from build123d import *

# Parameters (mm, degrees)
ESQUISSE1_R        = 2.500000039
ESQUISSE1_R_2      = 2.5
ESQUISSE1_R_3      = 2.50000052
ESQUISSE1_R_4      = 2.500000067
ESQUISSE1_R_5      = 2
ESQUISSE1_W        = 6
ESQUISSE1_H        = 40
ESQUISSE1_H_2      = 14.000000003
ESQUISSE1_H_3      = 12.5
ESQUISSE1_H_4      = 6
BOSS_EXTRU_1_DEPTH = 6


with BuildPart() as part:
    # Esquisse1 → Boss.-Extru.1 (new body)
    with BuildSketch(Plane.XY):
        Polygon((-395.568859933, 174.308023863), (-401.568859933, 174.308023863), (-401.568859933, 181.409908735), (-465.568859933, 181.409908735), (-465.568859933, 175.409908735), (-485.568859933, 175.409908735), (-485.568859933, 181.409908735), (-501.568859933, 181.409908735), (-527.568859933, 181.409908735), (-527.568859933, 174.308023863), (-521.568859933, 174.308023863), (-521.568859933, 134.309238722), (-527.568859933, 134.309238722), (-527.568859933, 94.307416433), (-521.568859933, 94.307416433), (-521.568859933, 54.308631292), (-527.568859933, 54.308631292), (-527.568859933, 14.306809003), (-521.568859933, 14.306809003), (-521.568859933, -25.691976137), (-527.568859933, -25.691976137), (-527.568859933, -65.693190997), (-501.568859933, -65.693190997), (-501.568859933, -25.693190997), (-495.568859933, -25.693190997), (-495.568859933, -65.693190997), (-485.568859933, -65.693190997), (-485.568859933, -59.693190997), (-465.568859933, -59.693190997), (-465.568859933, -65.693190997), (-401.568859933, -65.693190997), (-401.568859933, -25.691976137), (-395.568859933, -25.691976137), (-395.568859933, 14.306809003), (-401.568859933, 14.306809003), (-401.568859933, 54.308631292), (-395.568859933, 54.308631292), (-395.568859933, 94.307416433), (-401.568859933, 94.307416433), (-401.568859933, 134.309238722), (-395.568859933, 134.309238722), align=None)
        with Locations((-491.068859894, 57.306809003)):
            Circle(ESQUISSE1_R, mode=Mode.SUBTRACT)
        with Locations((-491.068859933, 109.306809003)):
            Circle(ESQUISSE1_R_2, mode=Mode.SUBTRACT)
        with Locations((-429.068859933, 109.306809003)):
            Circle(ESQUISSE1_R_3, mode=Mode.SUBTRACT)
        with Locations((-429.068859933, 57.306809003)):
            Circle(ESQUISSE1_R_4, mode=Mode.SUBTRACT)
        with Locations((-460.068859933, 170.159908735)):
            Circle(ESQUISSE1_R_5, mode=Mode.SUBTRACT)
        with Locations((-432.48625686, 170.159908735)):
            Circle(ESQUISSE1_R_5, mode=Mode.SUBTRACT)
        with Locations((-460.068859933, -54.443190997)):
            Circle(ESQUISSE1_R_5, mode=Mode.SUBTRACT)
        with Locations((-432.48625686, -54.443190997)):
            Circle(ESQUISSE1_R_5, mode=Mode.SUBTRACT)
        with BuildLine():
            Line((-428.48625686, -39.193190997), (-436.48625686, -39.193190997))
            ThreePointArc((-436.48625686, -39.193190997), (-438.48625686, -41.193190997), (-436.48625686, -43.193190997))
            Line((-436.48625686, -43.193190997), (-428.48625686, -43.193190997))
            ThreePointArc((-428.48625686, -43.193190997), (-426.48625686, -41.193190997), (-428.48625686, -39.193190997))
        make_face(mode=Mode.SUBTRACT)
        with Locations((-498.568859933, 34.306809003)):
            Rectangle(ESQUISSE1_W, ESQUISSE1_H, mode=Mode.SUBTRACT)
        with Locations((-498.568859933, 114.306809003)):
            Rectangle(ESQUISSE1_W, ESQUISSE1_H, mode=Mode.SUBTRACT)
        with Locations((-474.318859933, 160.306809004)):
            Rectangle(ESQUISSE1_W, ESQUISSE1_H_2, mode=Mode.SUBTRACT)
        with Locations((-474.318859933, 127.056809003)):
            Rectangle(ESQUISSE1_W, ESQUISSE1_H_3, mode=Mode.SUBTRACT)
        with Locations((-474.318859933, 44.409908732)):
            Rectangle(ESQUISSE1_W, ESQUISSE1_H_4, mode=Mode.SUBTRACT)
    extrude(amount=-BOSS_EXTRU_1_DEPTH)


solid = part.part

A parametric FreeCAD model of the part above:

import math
import FreeCAD as App
import Part
import Sketcher


def add_polygon(sketch, points):
    """Adds a closed chain of lines whose ends are joined by coincident constraints."""
    first, n = sketch.GeometryCount, len(points)
    for a, b in zip(points, points[1:] + points[:1]):
        sketch.addGeometry(Part.LineSegment(App.Vector(*a, 0), App.Vector(*b, 0)), False)
    for i in range(n):
        sketch.addConstraint(Sketcher.Constraint("Coincident", first + i, 2, first + (i + 1) % n, 1))

doc = App.newDocument("Part")
body = doc.addObject("PartDesign::Body", "Body")

# Sketch on XY plane
sketch1 = body.newObject("Sketcher::SketchObject", "Sketch")
sketch1.AttachmentSupport = (doc.getObject("XY_Plane"), [""])
sketch1.MapMode = "FlatFace"
add_polygon(sketch1, [(-395.56886, 174.308024), (-401.56886, 174.308024), (-401.56886, 181.409909), (-465.56886, 181.409909), (-465.56886, 175.409909), (-485.56886, 175.409909), (-485.56886, 181.409909), (-527.56886, 181.409909), (-527.56886, 174.308024), (-521.56886, 174.308024), (-521.56886, 134.309239), (-527.56886, 134.309239), (-527.56886, 94.307416), (-521.56886, 94.307416), (-521.56886, 54.308631), (-527.56886, 54.308631), (-527.56886, 14.306809), (-521.56886, 14.306809), (-521.56886, -25.691976), (-527.56886, -25.691976), (-527.56886, -65.693191), (-501.56886, -65.693191), (-501.56886, -25.693191), (-495.56886, -25.693191), (-495.56886, -65.693191), (-485.56886, -65.693191), (-485.56886, -59.693191), (-465.56886, -59.693191), (-465.56886, -65.693191), (-401.56886, -65.693191), (-401.56886, -25.691976), (-395.56886, -25.691976), (-395.56886, 14.306809), (-401.56886, 14.306809), (-401.56886, 54.308631), (-395.56886, 54.308631), (-395.56886, 94.307416), (-401.56886, 94.307416), (-401.56886, 134.309239), (-395.56886, 134.309239)])  # lines 0-39
add_polygon(sketch1, [(-495.56886, 14.306809), (-501.56886, 14.306809), (-501.56886, 54.306809), (-495.56886, 54.306809)])  # lines 40-43
sketch1.addGeometry(Part.Circle(App.Vector(-491.06886, 57.306809, 0), App.Vector(0, 0, 1), 2.5), False)  # 44
add_polygon(sketch1, [(-471.31886, 41.409909), (-477.31886, 41.409909), (-477.31886, 47.409909), (-471.31886, 47.409909)])  # lines 45-48
sketch1.addGeometry(Part.Circle(App.Vector(-460.06886, -54.443191, 0), App.Vector(0, 0, 1), 2), False)  # 49
sketch1.addGeometry(Part.Circle(App.Vector(-432.486257, -54.443191, 0), App.Vector(0, 0, 1), 2), False)  # 50
sketch1.addGeometry(Part.LineSegment(App.Vector(-436.486257, -39.193191, 0), App.Vector(-428.486257, -39.193191, 0)), False)  # 51
sketch1.addGeometry(Part.ArcOfCircle(Part.Circle(App.Vector(-428.486257, -41.193191, 0), App.Vector(0, 0, 1), 2), math.radians(-90), math.radians(90)), False)  # 52
sketch1.addGeometry(Part.LineSegment(App.Vector(-428.486257, -43.193191, 0), App.Vector(-436.486257, -43.193191, 0)), False)  # 53
sketch1.addGeometry(Part.ArcOfCircle(Part.Circle(App.Vector(-436.486257, -41.193191, 0), App.Vector(0, 0, 1), 2), math.radians(90), math.radians(270)), False)  # 54
sketch1.addGeometry(Part.Circle(App.Vector(-429.06886, 57.306809, 0), App.Vector(0, 0, 1), 2.5), False)  # 55
add_polygon(sketch1, [(-495.56886, 94.306809), (-501.56886, 94.306809), (-501.56886, 134.306809), (-495.56886, 134.306809)])  # lines 56-59
sketch1.addGeometry(Part.Circle(App.Vector(-491.06886, 109.306809, 0), App.Vector(0, 0, 1), 2.5), False)  # 60
add_polygon(sketch1, [(-471.31886, 120.806809), (-477.31886, 120.806809), (-477.31886, 133.306809), (-471.31886, 133.306809)])  # lines 61-64
add_polygon(sketch1, [(-471.31886, 153.306809), (-477.31886, 153.306809), (-477.31886, 167.306809), (-471.31886, 167.306809)])  # lines 65-68
sketch1.addGeometry(Part.Circle(App.Vector(-429.06886, 109.306809, 0), App.Vector(0, 0, 1), 2.500001), False)  # 69
sketch1.addGeometry(Part.Circle(App.Vector(-460.06886, 170.159909, 0), App.Vector(0, 0, 1), 2), False)  # 70
sketch1.addGeometry(Part.Circle(App.Vector(-432.486257, 170.159909, 0), App.Vector(0, 0, 1), 2), False)  # 71
sketch1.addConstraint([
    Sketcher.Constraint("Tangent", 51, 2, 52, 2),
    Sketcher.Constraint("Tangent", 52, 1, 53, 1),
    Sketcher.Constraint("Tangent", 53, 2, 54, 2),
    Sketcher.Constraint("Tangent", 54, 1, 51, 1),
    Sketcher.Constraint("Horizontal", 0),
    Sketcher.Constraint("Vertical", 1),
    Sketcher.Constraint("Horizontal", 2),
    Sketcher.Constraint("Vertical", 3),
    Sketcher.Constraint("Horizontal", 4),
    Sketcher.Constraint("Vertical", 5),
    Sketcher.Constraint("Horizontal", 6),
    Sketcher.Constraint("Vertical", 7),
    Sketcher.Constraint("Horizontal", 8),
    Sketcher.Constraint("Vertical", 9),
    Sketcher.Constraint("Horizontal", 10),
    Sketcher.Constraint("Vertical", 11),
    Sketcher.Constraint("Horizontal", 12),
    Sketcher.Constraint("Vertical", 13),
    Sketcher.Constraint("Horizontal", 14),
    Sketcher.Constraint("Vertical", 15),
    Sketcher.Constraint("Horizontal", 16),
    Sketcher.Constraint("Vertical", 17),
    Sketcher.Constraint("Horizontal", 18),
    Sketcher.Constraint("Vertical", 19),
    Sketcher.Constraint("Horizontal", 20),
    Sketcher.Constraint("Vertical", 21),
    Sketcher.Constraint("Horizontal", 22),
    Sketcher.Constraint("Vertical", 23),
    Sketcher.Constraint("Horizontal", 24),
    Sketcher.Constraint("Vertical", 25),
    Sketcher.Constraint("Horizontal", 26),
    Sketcher.Constraint("Vertical", 27),
    Sketcher.Constraint("Horizontal", 28),
    Sketcher.Constraint("Vertical", 29),
    Sketcher.Constraint("Horizontal", 30),
    Sketcher.Constraint("Vertical", 31),
    Sketcher.Constraint("Horizontal", 32),
    Sketcher.Constraint("Vertical", 33),
    Sketcher.Constraint("Horizontal", 34),
    Sketcher.Constraint("Vertical", 35),
    Sketcher.Constraint("Horizontal", 36),
    Sketcher.Constraint("Vertical", 37),
    Sketcher.Constraint("Horizontal", 38),
    Sketcher.Constraint("Vertical", 39),
    Sketcher.Constraint("Horizontal", 40),
    Sketcher.Constraint("Vertical", 41),
    Sketcher.Constraint("Horizontal", 42),
    Sketcher.Constraint("Vertical", 43),
    Sketcher.Constraint("Horizontal", 45),
    Sketcher.Constraint("Vertical", 46),
    Sketcher.Constraint("Horizontal", 47),
    Sketcher.Constraint("Vertical", 48),
    Sketcher.Constraint("Horizontal", 51),
    Sketcher.Constraint("Horizontal", 53),
    Sketcher.Constraint("Horizontal", 56),
    Sketcher.Constraint("Vertical", 57),
    Sketcher.Constraint("Horizontal", 58),
    Sketcher.Constraint("Vertical", 59),
    Sketcher.Constraint("Horizontal", 61),
    Sketcher.Constraint("Vertical", 62),
    Sketcher.Constraint("Horizontal", 63),
    Sketcher.Constraint("Vertical", 64),
    Sketcher.Constraint("Horizontal", 65),
    Sketcher.Constraint("Vertical", 66),
    Sketcher.Constraint("Horizontal", 67),
    Sketcher.Constraint("Vertical", 68),
    Sketcher.Constraint("Equal", 49, 50),
    Sketcher.Constraint("Equal", 50, 52),
    Sketcher.Constraint("Equal", 44, 55),
    Sketcher.Constraint("Equal", 55, 60),
    Sketcher.Constraint("Equal", 60, 69),
    Sketcher.Constraint("Equal", 54, 70),
    Sketcher.Constraint("Equal", 70, 71),
    Sketcher.Constraint("Horizontal", 49, 3, 50, 3),
    Sketcher.Constraint("Horizontal", 44, 3, 55, 3),
    Sketcher.Constraint("Horizontal", 60, 3, 69, 3),
    Sketcher.Constraint("Horizontal", 70, 3, 71, 3),
    Sketcher.Constraint("Horizontal", 2, 2, 5, 2),
    Sketcher.Constraint("Horizontal", 0, 2, 7, 2),
    Sketcher.Constraint("Horizontal", 20, 2, 23, 2),
    Sketcher.Constraint("Horizontal", 24, 2, 27, 2),
    Sketcher.Constraint("Horizontal", 18, 2, 29, 2),
    Sketcher.Constraint("Horizontal", 16, 2, 31, 2),
    Sketcher.Constraint("Horizontal", 14, 2, 33, 2),
    Sketcher.Constraint("Horizontal", 12, 2, 35, 2),
    Sketcher.Constraint("Horizontal", 10, 2, 37, 2),
    Sketcher.Constraint("Horizontal", 32, 2, 40, 2),
    Sketcher.Constraint("Vertical", 44, 3, 60, 3),
    Sketcher.Constraint("Vertical", 55, 3, 69, 3),
    Sketcher.Constraint("Vertical", 49, 3, 70, 3),
    Sketcher.Constraint("Vertical", 50, 3, 71, 3),
    Sketcher.Constraint("Vertical", 7, 2, 10, 2),
    Sketcher.Constraint("Vertical", 9, 2, 12, 2),
    Sketcher.Constraint("Vertical", 11, 2, 14, 2),
    Sketcher.Constraint("Vertical", 13, 2, 16, 2),
    Sketcher.Constraint("Vertical", 15, 2, 18, 2),
    Sketcher.Constraint("Vertical", 5, 2, 24, 2),
    Sketcher.Constraint("Vertical", 3, 2, 26, 2),
    Sketcher.Constraint("Vertical", 1, 2, 28, 2),
    Sketcher.Constraint("Vertical", 29, 2, 32, 2),
    Sketcher.Constraint("Vertical", 31, 2, 34, 2),
    Sketcher.Constraint("Vertical", 33, 2, 36, 2),
    Sketcher.Constraint("Vertical", 35, 2, 38, 2),
    Sketcher.Constraint("Vertical", 21, 2, 40, 2),
    Sketcher.Constraint("Vertical", 23, 2, 42, 2),
    Sketcher.Constraint("Vertical", 41, 2, 56, 2),
    Sketcher.Constraint("Vertical", 43, 2, 58, 2),
    Sketcher.Constraint("Vertical", 46, 2, 61, 2),
    Sketcher.Constraint("Vertical", 48, 2, 63, 2),
    Sketcher.Constraint("Vertical", 62, 2, 65, 2),
    Sketcher.Constraint("Vertical", 64, 2, 67, 2),
    Sketcher.Constraint("Equal", 0, 8),
    Sketcher.Constraint("Equal", 18, 22),
    Sketcher.Constraint("Equal", 42, 45),
    Sketcher.Constraint("Equal", 67, 3),
    Sketcher.Constraint("Equal", 9, 13),
    Sketcher.Constraint("Equal", 11, 15),
    Sketcher.Constraint("Equal", 13, 17),
    Sketcher.Constraint("Equal", 5, 25),
    Sketcher.Constraint("Equal", 23, 41),
    Sketcher.Constraint("Equal", 27, 46),
    Sketcher.Constraint("Equal", 43, 57),
    Sketcher.Constraint("Diameter", 44, 5.0),
    Sketcher.Constraint("Diameter", 49, 4.0),
    Sketcher.Constraint("DistanceX", 0, 2, 0, 1, 6.0),
    Sketcher.Constraint("DistanceX", 2, 2, 2, 1, 64.0),
    Sketcher.Constraint("DistanceX", 4, 2, 4, 1, 20.0),
    Sketcher.Constraint("DistanceX", 6, 2, 6, 1, 42.0),
    Sketcher.Constraint("DistanceX", 20, 1, 20, 2, 26.0),
    Sketcher.Constraint("DistanceX", 51, 1, 51, 2, 8.0),
    Sketcher.Constraint("DistanceY", 21, 1, 21, 2, 40.0),
    Sketcher.Constraint("DistanceY", 66, 1, 66, 2, 14.0),
    Sketcher.Constraint("DistanceY", 62, 1, 62, 2, 12.5),
    Sketcher.Constraint("DistanceY", 1, 1, 1, 2, 7.101885),
    Sketcher.Constraint("DistanceY", 9, 2, 9, 1, 39.998785),
    Sketcher.Constraint("DistanceY", 11, 2, 11, 1, 40.001822),
    Sketcher.Constraint("DistanceY", 19, 2, 19, 1, 40.001215),
    Sketcher.Constraint("DistanceX", 44, 3, -1, 1, 491.06886),
    Sketcher.Constraint("DistanceY", -1, 1, 44, 3, 57.306809),
    Sketcher.Constraint("DistanceX", 49, 3, -1, 1, 460.06886),
    Sketcher.Constraint("DistanceY", 49, 3, -1, 1, 54.443191),
    Sketcher.Constraint("DistanceY", 52, 3, -1, 1, 41.193191),
    Sketcher.Constraint("DistanceX", 55, 3, -1, 1, 429.06886),
    Sketcher.Constraint("DistanceY", -1, 1, 60, 3, 109.306809),
    Sketcher.Constraint("DistanceY", -1, 1, 70, 3, 170.159909),
    Sketcher.Constraint("DistanceX", 0, 2, -1, 1, 401.56886),
    Sketcher.Constraint("DistanceY", -1, 1, 1, 2, 181.409909),
    Sketcher.Constraint("DistanceX", 45, 2, -1, 1, 477.31886),
    Sketcher.Constraint("DistanceY", -1, 1, 45, 2, 41.409909),
    Sketcher.Constraint("DistanceY", -1, 1, 56, 2, 94.306809),
    Sketcher.Constraint("DistanceY", -1, 1, 61, 2, 120.806809),
    Sketcher.Constraint("DistanceY", -1, 1, 65, 2, 153.306809),
    Sketcher.Constraint("DistanceX", 50, 3, -1, 1, 432.486257),
    Sketcher.Constraint("DistanceX", 52, 3, -1, 1, 428.486257),
])
pad1 = body.newObject("PartDesign::Pad", "Pad")
pad1.Profile = sketch1
pad1.Length = 6
pad1.Reversed = True

doc.recompute()
